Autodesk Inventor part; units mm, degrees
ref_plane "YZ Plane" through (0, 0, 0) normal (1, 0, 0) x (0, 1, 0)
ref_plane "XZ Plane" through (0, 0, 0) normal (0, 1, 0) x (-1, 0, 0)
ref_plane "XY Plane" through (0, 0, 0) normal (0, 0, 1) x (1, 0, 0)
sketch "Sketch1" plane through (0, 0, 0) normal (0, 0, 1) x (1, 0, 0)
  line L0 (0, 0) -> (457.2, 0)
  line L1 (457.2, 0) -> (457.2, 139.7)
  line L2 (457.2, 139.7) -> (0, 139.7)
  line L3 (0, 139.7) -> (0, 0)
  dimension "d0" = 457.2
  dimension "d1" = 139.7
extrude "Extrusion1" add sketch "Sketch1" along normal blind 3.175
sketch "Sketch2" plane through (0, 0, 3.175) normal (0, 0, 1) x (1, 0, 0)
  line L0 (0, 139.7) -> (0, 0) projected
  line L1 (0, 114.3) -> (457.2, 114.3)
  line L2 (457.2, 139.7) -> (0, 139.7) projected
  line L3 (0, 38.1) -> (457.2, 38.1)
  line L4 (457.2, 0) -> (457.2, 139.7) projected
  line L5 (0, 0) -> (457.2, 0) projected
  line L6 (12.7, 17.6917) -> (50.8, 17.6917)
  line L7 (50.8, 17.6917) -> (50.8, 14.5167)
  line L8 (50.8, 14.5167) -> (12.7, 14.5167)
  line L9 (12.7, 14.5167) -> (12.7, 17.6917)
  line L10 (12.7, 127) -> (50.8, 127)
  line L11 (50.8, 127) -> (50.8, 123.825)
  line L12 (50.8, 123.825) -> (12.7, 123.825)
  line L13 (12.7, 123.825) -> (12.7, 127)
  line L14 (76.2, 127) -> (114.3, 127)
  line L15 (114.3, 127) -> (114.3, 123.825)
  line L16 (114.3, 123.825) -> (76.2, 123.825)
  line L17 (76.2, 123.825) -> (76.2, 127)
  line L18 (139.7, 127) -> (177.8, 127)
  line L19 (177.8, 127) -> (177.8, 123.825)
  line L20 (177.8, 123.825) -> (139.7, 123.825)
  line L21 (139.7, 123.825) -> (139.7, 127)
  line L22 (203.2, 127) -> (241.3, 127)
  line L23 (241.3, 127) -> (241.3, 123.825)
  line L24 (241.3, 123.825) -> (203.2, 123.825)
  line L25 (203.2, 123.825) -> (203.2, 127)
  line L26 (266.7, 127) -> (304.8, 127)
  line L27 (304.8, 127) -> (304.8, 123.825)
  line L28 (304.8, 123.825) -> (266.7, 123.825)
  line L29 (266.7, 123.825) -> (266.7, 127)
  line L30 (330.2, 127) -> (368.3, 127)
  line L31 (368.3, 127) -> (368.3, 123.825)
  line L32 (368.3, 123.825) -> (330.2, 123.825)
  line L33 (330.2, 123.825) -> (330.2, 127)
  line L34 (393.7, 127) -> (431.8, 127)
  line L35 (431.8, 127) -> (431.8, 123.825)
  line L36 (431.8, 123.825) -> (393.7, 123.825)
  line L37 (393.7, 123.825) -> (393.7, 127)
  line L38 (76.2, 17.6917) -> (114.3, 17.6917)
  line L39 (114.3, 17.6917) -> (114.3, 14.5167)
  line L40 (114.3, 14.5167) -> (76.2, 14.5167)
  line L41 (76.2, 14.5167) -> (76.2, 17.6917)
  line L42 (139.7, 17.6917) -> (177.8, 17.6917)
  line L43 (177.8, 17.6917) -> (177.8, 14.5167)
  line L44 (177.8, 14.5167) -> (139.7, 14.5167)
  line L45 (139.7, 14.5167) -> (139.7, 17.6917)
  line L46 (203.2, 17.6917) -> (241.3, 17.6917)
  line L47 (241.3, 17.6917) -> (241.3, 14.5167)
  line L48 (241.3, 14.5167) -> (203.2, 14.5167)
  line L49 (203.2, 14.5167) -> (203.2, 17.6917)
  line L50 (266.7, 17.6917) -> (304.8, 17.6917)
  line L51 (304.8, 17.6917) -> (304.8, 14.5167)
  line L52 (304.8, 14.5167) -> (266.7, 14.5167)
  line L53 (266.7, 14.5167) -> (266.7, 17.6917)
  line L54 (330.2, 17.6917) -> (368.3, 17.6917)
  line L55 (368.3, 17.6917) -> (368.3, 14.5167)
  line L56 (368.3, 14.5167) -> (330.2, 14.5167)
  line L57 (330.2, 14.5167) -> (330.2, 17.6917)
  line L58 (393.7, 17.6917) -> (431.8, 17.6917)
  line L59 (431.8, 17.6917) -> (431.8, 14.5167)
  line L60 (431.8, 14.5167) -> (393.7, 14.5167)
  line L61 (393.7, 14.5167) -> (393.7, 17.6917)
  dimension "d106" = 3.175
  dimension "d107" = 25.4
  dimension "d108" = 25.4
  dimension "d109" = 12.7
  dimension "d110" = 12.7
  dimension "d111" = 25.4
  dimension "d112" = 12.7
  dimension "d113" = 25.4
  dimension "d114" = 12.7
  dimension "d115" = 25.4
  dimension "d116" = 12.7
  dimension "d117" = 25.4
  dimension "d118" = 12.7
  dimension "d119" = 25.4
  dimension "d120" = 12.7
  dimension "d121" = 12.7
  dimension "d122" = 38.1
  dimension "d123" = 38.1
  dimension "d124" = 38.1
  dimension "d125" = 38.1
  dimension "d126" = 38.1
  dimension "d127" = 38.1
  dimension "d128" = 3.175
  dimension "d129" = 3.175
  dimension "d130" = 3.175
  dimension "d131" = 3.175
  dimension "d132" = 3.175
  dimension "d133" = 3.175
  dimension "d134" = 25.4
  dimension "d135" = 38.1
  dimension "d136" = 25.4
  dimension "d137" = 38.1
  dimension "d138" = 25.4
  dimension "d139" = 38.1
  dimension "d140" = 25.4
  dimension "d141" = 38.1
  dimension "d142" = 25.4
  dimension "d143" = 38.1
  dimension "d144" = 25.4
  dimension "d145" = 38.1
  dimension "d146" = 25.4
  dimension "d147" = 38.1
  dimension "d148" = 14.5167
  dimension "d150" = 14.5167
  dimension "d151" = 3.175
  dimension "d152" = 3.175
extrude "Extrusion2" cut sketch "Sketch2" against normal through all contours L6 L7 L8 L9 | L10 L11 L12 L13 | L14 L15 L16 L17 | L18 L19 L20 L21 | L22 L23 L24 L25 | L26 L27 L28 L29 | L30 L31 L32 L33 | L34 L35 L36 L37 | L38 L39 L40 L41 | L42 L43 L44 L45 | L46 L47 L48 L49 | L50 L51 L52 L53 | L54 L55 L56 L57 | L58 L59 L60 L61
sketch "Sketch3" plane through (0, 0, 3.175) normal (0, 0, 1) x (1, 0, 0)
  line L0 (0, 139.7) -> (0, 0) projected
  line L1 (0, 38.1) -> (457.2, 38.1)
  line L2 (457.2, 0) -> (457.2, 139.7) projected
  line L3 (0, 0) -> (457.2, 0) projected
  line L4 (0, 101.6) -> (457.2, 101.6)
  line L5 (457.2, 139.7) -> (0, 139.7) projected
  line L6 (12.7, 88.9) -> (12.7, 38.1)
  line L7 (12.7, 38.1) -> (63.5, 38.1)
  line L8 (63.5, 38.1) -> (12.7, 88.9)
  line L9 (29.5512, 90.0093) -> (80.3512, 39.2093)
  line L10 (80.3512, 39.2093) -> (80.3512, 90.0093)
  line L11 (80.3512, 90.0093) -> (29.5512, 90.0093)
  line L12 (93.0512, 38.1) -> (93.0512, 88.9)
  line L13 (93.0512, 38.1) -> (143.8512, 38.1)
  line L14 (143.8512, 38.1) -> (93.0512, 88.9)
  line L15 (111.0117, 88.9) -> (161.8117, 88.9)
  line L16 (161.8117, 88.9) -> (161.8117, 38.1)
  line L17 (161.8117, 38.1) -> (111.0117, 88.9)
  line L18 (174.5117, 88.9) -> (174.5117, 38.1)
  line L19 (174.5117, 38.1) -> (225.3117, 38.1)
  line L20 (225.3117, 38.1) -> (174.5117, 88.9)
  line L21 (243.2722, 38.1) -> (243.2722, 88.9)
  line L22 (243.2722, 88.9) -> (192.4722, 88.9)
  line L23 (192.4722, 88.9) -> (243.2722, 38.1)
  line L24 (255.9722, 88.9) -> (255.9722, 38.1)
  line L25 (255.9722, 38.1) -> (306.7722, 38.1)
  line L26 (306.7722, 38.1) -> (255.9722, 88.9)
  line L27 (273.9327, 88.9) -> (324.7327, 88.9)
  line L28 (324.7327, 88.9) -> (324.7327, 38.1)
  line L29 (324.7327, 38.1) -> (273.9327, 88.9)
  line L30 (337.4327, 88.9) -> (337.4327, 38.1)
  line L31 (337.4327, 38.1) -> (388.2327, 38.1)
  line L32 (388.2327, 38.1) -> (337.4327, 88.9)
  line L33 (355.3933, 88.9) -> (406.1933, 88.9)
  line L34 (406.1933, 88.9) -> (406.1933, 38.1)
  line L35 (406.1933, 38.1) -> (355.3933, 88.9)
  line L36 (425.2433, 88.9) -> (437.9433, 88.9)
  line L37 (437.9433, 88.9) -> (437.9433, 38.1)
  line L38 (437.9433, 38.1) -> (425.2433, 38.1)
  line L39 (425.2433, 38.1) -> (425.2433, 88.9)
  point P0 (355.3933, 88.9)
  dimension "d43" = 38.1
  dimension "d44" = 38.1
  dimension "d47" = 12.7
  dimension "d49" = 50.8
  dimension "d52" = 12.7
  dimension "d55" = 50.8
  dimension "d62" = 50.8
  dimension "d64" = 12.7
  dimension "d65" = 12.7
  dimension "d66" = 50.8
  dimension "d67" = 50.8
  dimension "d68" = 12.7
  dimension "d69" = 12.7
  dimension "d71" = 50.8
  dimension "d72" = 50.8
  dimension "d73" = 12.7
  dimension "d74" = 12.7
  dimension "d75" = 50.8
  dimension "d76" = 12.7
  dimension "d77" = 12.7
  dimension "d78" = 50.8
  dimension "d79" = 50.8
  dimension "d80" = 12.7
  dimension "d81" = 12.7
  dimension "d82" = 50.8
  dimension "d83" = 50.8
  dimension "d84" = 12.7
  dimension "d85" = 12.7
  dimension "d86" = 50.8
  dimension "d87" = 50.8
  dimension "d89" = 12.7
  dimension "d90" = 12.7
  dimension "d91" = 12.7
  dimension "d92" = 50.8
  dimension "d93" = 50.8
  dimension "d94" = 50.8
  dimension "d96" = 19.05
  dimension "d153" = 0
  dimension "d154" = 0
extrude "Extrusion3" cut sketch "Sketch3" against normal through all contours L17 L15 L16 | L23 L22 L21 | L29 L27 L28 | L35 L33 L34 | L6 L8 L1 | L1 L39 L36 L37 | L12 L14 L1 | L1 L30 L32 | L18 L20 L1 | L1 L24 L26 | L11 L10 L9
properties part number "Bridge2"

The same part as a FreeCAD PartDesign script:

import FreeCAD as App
import Part
import Sketcher

V = App.Vector
Q = App.Units.Quantity


def add_polygon(sketch, points):
    """Adds a closed chain of lines whose ends are joined by coincident constraints."""
    first, n = sketch.GeometryCount, len(points)
    for a, b in zip(points, points[1:] + points[:1]):
        sketch.addGeometry(Part.LineSegment(App.Vector(*a, 0), App.Vector(*b, 0)), False)
    for i in range(n):
        sketch.addConstraint(Sketcher.Constraint("Coincident", first + i, 2, first + (i + 1) % n, 1))

doc = App.newDocument("Part")
body = doc.addObject("PartDesign::Body", "Body")

# Sketch on XY plane
sketch1 = body.newObject("Sketcher::SketchObject", "Sketch")
sketch1.AttachmentSupport = (doc.getObject("XY_Plane"), [""])
sketch1.MapMode = "FlatFace"
add_polygon(sketch1, [(0, 140), (0, 0), (457, 0), (457, 140)])  # lines 0-3
sketch1.addConstraint([
    Sketcher.Constraint("Vertical", 0),
    Sketcher.Constraint("Horizontal", 1),
    Sketcher.Constraint("Vertical", 2),
    Sketcher.Constraint("Horizontal", 3),
    Sketcher.Constraint("Coincident", 0, 2, -1, 1),
    Sketcher.Constraint("DistanceX", 1, 1, 1, 2, Q("18 in")),
    Sketcher.Constraint("DistanceY", 0, 2, 0, 1, Q("5.5 in")),
])
pad1 = body.newObject("PartDesign::Pad", "Pad")
pad1.Profile = sketch1
pad1.Length = Q("0.125 in")

# Sketch on XY plane
sketch2 = body.newObject("Sketcher::SketchObject", "Sketch001")
sketch2.AttachmentSupport = (doc.getObject("XY_Plane"), [""])
sketch2.MapMode = "FlatFace"
sketch2.AttachmentOffset = App.Placement(V(0, 0, 0.125 * 25.4), App.Rotation())
add_polygon(sketch2, [(50.8, 17.7), (12.7, 17.7), (12.7, 14.5), (50.8, 14.5)])  # lines 0-3
add_polygon(sketch2, [(50.8, 127), (12.7, 127), (12.7, 123.8), (50.8, 123.8)])  # lines 4-7
add_polygon(sketch2, [(114.3, 127), (76.2, 127), (76.2, 123.8), (114.3, 123.8)])  # lines 8-11
add_polygon(sketch2, [(177.8, 127), (139.7, 127), (139.7, 123.8), (177.8, 123.8)])  # lines 12-15
add_polygon(sketch2, [(241.3, 127), (203.2, 127), (203.2, 123.8), (241.3, 123.8)])  # lines 16-19
add_polygon(sketch2, [(304.8, 127), (266.7, 127), (266.7, 123.8), (304.8, 123.8)])  # lines 20-23
add_polygon(sketch2, [(368.3, 127), (330.2, 127), (330.2, 123.8), (368.3, 123.8)])  # lines 24-27
add_polygon(sketch2, [(431.8, 127), (393.7, 127), (393.7, 123.8), (431.8, 123.8)])  # lines 28-31
add_polygon(sketch2, [(114.3, 17.7), (76.2, 17.7), (76.2, 14.5), (114.3, 14.5)])  # lines 32-35
add_polygon(sketch2, [(177.8, 17.7), (139.7, 17.7), (139.7, 14.5), (177.8, 14.5)])  # lines 36-39
add_polygon(sketch2, [(241.3, 17.7), (203.2, 17.7), (203.2, 14.5), (241.3, 14.5)])  # lines 40-43
add_polygon(sketch2, [(304.8, 17.7), (266.7, 17.7), (266.7, 14.5), (304.8, 14.5)])  # lines 44-47
add_polygon(sketch2, [(368.3, 17.7), (330.2, 17.7), (330.2, 14.5), (368.3, 14.5)])  # lines 48-51
add_polygon(sketch2, [(431.8, 17.7), (393.7, 17.7), (393.7, 14.5), (431.8, 14.5)])  # lines 52-55
sketch2.addConstraint([
    Sketcher.Constraint("Horizontal", 0),
    Sketcher.Constraint("Vertical", 1),
    Sketcher.Constraint("Horizontal", 2),
    Sketcher.Constraint("Vertical", 3),
    Sketcher.Constraint("Horizontal", 4),
    Sketcher.Constraint("Vertical", 5),
    Sketcher.Constraint("Horizontal", 6),
    Sketcher.Constraint("Vertical", 7),
    Sketcher.Constraint("Horizontal", 8),
    Sketcher.Constraint("Vertical", 9),
    Sketcher.Constraint("Horizontal", 10),
    Sketcher.Constraint("Vertical", 11),
    Sketcher.Constraint("Horizontal", 12),
    Sketcher.Constraint("Vertical", 13),
    Sketcher.Constraint("Horizontal", 14),
    Sketcher.Constraint("Vertical", 15),
    Sketcher.Constraint("Horizontal", 16),
    Sketcher.Constraint("Vertical", 17),
    Sketcher.Constraint("Horizontal", 18),
    Sketcher.Constraint("Vertical", 19),
    Sketcher.Constraint("Horizontal", 20),
    Sketcher.Constraint("Vertical", 21),
    Sketcher.Constraint("Horizontal", 22),
    Sketcher.Constraint("Vertical", 23),
    Sketcher.Constraint("Horizontal", 24),
    Sketcher.Constraint("Vertical", 25),
    Sketcher.Constraint("Horizontal", 26),
    Sketcher.Constraint("Vertical", 27),
    Sketcher.Constraint("Horizontal", 28),
    Sketcher.Constraint("Vertical", 29),
    Sketcher.Constraint("Horizontal", 30),
    Sketcher.Constraint("Vertical", 31),
    Sketcher.Constraint("Horizontal", 32),
    Sketcher.Constraint("Vertical", 33),
    Sketcher.Constraint("Horizontal", 34),
    Sketcher.Constraint("Vertical", 35),
    Sketcher.Constraint("Horizontal", 36),
    Sketcher.Constraint("Vertical", 37),
    Sketcher.Constraint("Horizontal", 38),
    Sketcher.Constraint("Vertical", 39),
    Sketcher.Constraint("Horizontal", 40),
    Sketcher.Constraint("Vertical", 41),
    Sketcher.Constraint("Horizontal", 42),
    Sketcher.Constraint("Vertical", 43),
    Sketcher.Constraint("Horizontal", 44),
    Sketcher.Constraint("Vertical", 45),
    Sketcher.Constraint("Horizontal", 46),
    Sketcher.Constraint("Vertical", 47),
    Sketcher.Constraint("Horizontal", 48),
    Sketcher.Constraint("Vertical", 49),
    Sketcher.Constraint("Horizontal", 50),
    Sketcher.Constraint("Vertical", 51),
    Sketcher.Constraint("Horizontal", 52),
    Sketcher.Constraint("Vertical", 53),
    Sketcher.Constraint("Horizontal", 54),
    Sketcher.Constraint("Vertical", 55),
    Sketcher.Constraint("Horizontal", 7, 2, 8, 2),
    Sketcher.Constraint("Horizontal", 6, 2, 9, 2),
    Sketcher.Constraint("Horizontal", 11, 2, 12, 2),
    Sketcher.Constraint("Horizontal", 10, 2, 13, 2),
    Sketcher.Constraint("Horizontal", 15, 2, 16, 2),
    Sketcher.Constraint("Horizontal", 14, 2, 17, 2),
    Sketcher.Constraint("Horizontal", 19, 2, 20, 2),
    Sketcher.Constraint("Horizontal", 18, 2, 21, 2),
    Sketcher.Constraint("Horizontal", 23, 2, 24, 2),
    Sketcher.Constraint("Horizontal", 22, 2, 25, 2),
    Sketcher.Constraint("Horizontal", 27, 2, 28, 2),
    Sketcher.Constraint("Horizontal", 26, 2, 29, 2),
    Sketcher.Constraint("Horizontal", 3, 2, 32, 2),
    Sketcher.Constraint("Horizontal", 2, 2, 33, 2),
    Sketcher.Constraint("Horizontal", 35, 2, 36, 2),
    Sketcher.Constraint("Horizontal", 34, 2, 37, 2),
    Sketcher.Constraint("Horizontal", 39, 2, 40, 2),
    Sketcher.Constraint("Horizontal", 38, 2, 41, 2),
    Sketcher.Constraint("Horizontal", 43, 2, 44, 2),
    Sketcher.Constraint("Horizontal", 42, 2, 45, 2),
    Sketcher.Constraint("Horizontal", 47, 2, 48, 2),
    Sketcher.Constraint("Horizontal", 46, 2, 49, 2),
    Sketcher.Constraint("Horizontal", 51, 2, 52, 2),
    Sketcher.Constraint("Horizontal", 50, 2, 53, 2),
    Sketcher.Constraint("Vertical", 1, 2, 4, 2),
    Sketcher.Constraint("Vertical", 3, 2, 6, 2),
    Sketcher.Constraint("Vertical", 9, 2, 32, 2),
    Sketcher.Constraint("Vertical", 11, 2, 34, 2),
    Sketcher.Constraint("Vertical", 13, 2, 36, 2),
    Sketcher.Constraint("Vertical", 15, 2, 38, 2),
    Sketcher.Constraint("Vertical", 17, 2, 40, 2),
    Sketcher.Constraint("Vertical", 19, 2, 42, 2),
    Sketcher.Constraint("Vertical", 21, 2, 44, 2),
    Sketcher.Constraint("Vertical", 23, 2, 46, 2),
    Sketcher.Constraint("Vertical", 25, 2, 48, 2),
    Sketcher.Constraint("Vertical", 27, 2, 50, 2),
    Sketcher.Constraint("Vertical", 29, 2, 52, 2),
    Sketcher.Constraint("Vertical", 31, 2, 54, 2),
    Sketcher.Constraint("Equal", 6, 8),
    Sketcher.Constraint("Equal", 10, 12),
    Sketcher.Constraint("Equal", 14, 16),
    Sketcher.Constraint("Equal", 18, 20),
    Sketcher.Constraint("Equal", 22, 24),
    Sketcher.Constraint("Equal", 26, 28),
    Sketcher.Constraint("Equal", 3, 5),
    Sketcher.Constraint("DistanceX", 0, 2, 0, 1, Q("1.5 in")),
    Sketcher.Constraint("DistanceX", 7, 2, 8, 2, Q("1 in")),
    Sketcher.Constraint("DistanceX", 11, 2, 12, 2, Q("1 in")),
    Sketcher.Constraint("DistanceX", 15, 2, 16, 2, Q("1 in")),
    Sketcher.Constraint("DistanceX", 19, 2, 20, 2, Q("1 in")),
    Sketcher.Constraint("DistanceX", 23, 2, 24, 2, Q("1 in")),
    Sketcher.Constraint("DistanceX", 27, 2, 28, 2, Q("1 in")),
    Sketcher.Constraint("DistanceX", -1, 1, 0, 2, Q("0.5 in")),
    Sketcher.Constraint("DistanceY", 1, 2, 1, 1, Q("0.125 in")),
    Sketcher.Constraint("DistanceY", -1, 1, 4, 2, Q("5 in")),
    Sketcher.Constraint("DistanceY", -1, 1, 1, 2, Q("14.5167 mm")),
])
pocket1 = body.newObject("PartDesign::Pocket", "Pocket")
pocket1.Profile = sketch2
pocket1.Type = "ThroughAll"

# Sketch on XY plane
sketch3 = body.newObject("Sketcher::SketchObject", "Sketch002")
sketch3.AttachmentSupport = (doc.getObject("XY_Plane"), [""])
sketch3.MapMode = "FlatFace"
sketch3.AttachmentOffset = App.Placement(V(0, 0, 0.125 * 25.4), App.Rotation())
add_polygon(sketch3, [(111, 89), (162, 38), (162, 89)])  # lines 0-2
add_polygon(sketch3, [(192, 89), (243, 38), (243, 89)])  # lines 3-5
add_polygon(sketch3, [(274, 89), (325, 38), (325, 89)])  # lines 6-8
add_polygon(sketch3, [(355, 89), (406, 38), (406, 89)])  # lines 9-11
add_polygon(sketch3, [(13, 89), (13, 38), (64, 38)])  # lines 12-14
add_polygon(sketch3, [(425, 38), (438, 38), (438, 89), (425, 89)])  # lines 15-18
add_polygon(sketch3, [(93, 89), (93, 38), (144, 38)])  # lines 19-21
add_polygon(sketch3, [(337, 38), (388, 38), (337, 89)])  # lines 22-24
add_polygon(sketch3, [(175, 89), (175, 38), (225, 38)])  # lines 25-27
add_polygon(sketch3, [(256, 38), (307, 38), (256, 89)])  # lines 28-30
add_polygon(sketch3, [(80, 90), (30, 90), (80, 39)])  # lines 31-33
sketch3.addConstraint([
    Sketcher.Constraint("Vertical", 1),
    Sketcher.Constraint("Horizontal", 2),
    Sketcher.Constraint("Vertical", 4),
    Sketcher.Constraint("Horizontal", 5),
    Sketcher.Constraint("Vertical", 7),
    Sketcher.Constraint("Horizontal", 8),
    Sketcher.Constraint("Vertical", 10),
    Sketcher.Constraint("Horizontal", 11),
    Sketcher.Constraint("Vertical", 12),
    Sketcher.Constraint("Horizontal", 13),
    Sketcher.Constraint("Horizontal", 15),
    Sketcher.Constraint("Vertical", 16),
    Sketcher.Constraint("Horizontal", 17),
    Sketcher.Constraint("Vertical", 18),
    Sketcher.Constraint("Vertical", 19),
    Sketcher.Constraint("Horizontal", 20),
    Sketcher.Constraint("Horizontal", 22),
    Sketcher.Constraint("Vertical", 24),
    Sketcher.Constraint("Vertical", 25),
    Sketcher.Constraint("Horizontal", 26),
    Sketcher.Constraint("Horizontal", 28),
    Sketcher.Constraint("Vertical", 30),
    Sketcher.Constraint("Horizontal", 31),
    Sketcher.Constraint("Vertical", 33),
    Sketcher.Constraint("Parallel", 0, 3),
    Sketcher.Constraint("Parallel", 3, 6),
    Sketcher.Constraint("Parallel", 6, 9),
    Sketcher.Constraint("Parallel", 9, 14),
    Sketcher.Constraint("Parallel", 14, 21),
    Sketcher.Constraint("Parallel", 21, 23),
    Sketcher.Constraint("Parallel", 23, 27),
    Sketcher.Constraint("Parallel", 27, 29),
    Sketcher.Constraint("Parallel", 29, 32),
    Sketcher.Constraint("Horizontal", 0, 2, 3, 2),
    Sketcher.Constraint("Horizontal", 2, 2, 4, 2),
    Sketcher.Constraint("Horizontal", 3, 2, 6, 2),
    Sketcher.Constraint("Horizontal", 5, 2, 7, 2),
    Sketcher.Constraint("Horizontal", 6, 2, 9, 2),
    Sketcher.Constraint("Horizontal", 8, 2, 10, 2),
    Sketcher.Constraint("Horizontal", 9, 2, 12, 2),
    Sketcher.Constraint("Horizontal", 11, 2, 14, 2),
    Sketcher.Constraint("Horizontal", 13, 2, 15, 2),
    Sketcher.Constraint("Horizontal", 14, 2, 16, 2),
    Sketcher.Constraint("Horizontal", 18, 2, 19, 2),
    Sketcher.Constraint("Horizontal", 17, 2, 21, 2),
    Sketcher.Constraint("Horizontal", 20, 2, 22, 2),
    Sketcher.Constraint("Horizontal", 21, 2, 23, 2),
    Sketcher.Constraint("Horizontal", 24, 2, 25, 2),
    Sketcher.Constraint("Horizontal", 23, 2, 27, 2),
    Sketcher.Constraint("Horizontal", 26, 2, 28, 2),
    Sketcher.Constraint("Horizontal", 27, 2, 29, 2),
    Sketcher.Constraint("Equal", 28, 31),
    Sketcher.Constraint("Equal", 31, 1),
    Sketcher.Constraint("DistanceX", 2, 2, 2, 1, Q("2 in")),
    Sketcher.Constraint("DistanceX", 15, 1, 15, 2, Q("0.5 in")),
    Sketcher.Constraint("DistanceY", -1, 1, 0, 2, Q("1.5 in")),
    Sketcher.Constraint("DistanceX", -1, 1, 12, 2, Q("0.5 in")),
    Sketcher.Constraint("DistanceX", 7, 2, 23, 2, Q("0.5 in")),
    Sketcher.Constraint("DistanceX", 0, 2, 25, 2, Q("0.5 in")),
    Sketcher.Constraint("DistanceX", 4, 2, 29, 2, Q("0.5 in")),
    Sketcher.Constraint("DistanceX", 32, 2, 19, 2, Q("0.5 in")),
    Sketcher.Constraint("DistanceX", 10, 2, 17, 2, Q("0.75 in")),
    Sketcher.Constraint("DistanceX", 0, 2, 3, 2, Q("3.2071 in")),
    Sketcher.Constraint("DistanceX", 3, 2, 6, 2, Q("3.2071 in")),
    Sketcher.Constraint("DistanceX", 6, 2, 9, 2, Q("3.2071 in")),
    Sketcher.Constraint("DistanceX", 19, 2, 2, 2, Q("0.7071 in")),
    Sketcher.Constraint("DistanceX", -1, 1, 0, 2, Q("161.8117 mm")),
    Sketcher.Constraint("DistanceY", -1, 1, 31, 2, Q("90.0093 mm")),
])
pocket2 = body.newObject("PartDesign::Pocket", "Pocket001")
pocket2.Profile = sketch3
pocket2.Type = "ThroughAll"

doc.recompute()
